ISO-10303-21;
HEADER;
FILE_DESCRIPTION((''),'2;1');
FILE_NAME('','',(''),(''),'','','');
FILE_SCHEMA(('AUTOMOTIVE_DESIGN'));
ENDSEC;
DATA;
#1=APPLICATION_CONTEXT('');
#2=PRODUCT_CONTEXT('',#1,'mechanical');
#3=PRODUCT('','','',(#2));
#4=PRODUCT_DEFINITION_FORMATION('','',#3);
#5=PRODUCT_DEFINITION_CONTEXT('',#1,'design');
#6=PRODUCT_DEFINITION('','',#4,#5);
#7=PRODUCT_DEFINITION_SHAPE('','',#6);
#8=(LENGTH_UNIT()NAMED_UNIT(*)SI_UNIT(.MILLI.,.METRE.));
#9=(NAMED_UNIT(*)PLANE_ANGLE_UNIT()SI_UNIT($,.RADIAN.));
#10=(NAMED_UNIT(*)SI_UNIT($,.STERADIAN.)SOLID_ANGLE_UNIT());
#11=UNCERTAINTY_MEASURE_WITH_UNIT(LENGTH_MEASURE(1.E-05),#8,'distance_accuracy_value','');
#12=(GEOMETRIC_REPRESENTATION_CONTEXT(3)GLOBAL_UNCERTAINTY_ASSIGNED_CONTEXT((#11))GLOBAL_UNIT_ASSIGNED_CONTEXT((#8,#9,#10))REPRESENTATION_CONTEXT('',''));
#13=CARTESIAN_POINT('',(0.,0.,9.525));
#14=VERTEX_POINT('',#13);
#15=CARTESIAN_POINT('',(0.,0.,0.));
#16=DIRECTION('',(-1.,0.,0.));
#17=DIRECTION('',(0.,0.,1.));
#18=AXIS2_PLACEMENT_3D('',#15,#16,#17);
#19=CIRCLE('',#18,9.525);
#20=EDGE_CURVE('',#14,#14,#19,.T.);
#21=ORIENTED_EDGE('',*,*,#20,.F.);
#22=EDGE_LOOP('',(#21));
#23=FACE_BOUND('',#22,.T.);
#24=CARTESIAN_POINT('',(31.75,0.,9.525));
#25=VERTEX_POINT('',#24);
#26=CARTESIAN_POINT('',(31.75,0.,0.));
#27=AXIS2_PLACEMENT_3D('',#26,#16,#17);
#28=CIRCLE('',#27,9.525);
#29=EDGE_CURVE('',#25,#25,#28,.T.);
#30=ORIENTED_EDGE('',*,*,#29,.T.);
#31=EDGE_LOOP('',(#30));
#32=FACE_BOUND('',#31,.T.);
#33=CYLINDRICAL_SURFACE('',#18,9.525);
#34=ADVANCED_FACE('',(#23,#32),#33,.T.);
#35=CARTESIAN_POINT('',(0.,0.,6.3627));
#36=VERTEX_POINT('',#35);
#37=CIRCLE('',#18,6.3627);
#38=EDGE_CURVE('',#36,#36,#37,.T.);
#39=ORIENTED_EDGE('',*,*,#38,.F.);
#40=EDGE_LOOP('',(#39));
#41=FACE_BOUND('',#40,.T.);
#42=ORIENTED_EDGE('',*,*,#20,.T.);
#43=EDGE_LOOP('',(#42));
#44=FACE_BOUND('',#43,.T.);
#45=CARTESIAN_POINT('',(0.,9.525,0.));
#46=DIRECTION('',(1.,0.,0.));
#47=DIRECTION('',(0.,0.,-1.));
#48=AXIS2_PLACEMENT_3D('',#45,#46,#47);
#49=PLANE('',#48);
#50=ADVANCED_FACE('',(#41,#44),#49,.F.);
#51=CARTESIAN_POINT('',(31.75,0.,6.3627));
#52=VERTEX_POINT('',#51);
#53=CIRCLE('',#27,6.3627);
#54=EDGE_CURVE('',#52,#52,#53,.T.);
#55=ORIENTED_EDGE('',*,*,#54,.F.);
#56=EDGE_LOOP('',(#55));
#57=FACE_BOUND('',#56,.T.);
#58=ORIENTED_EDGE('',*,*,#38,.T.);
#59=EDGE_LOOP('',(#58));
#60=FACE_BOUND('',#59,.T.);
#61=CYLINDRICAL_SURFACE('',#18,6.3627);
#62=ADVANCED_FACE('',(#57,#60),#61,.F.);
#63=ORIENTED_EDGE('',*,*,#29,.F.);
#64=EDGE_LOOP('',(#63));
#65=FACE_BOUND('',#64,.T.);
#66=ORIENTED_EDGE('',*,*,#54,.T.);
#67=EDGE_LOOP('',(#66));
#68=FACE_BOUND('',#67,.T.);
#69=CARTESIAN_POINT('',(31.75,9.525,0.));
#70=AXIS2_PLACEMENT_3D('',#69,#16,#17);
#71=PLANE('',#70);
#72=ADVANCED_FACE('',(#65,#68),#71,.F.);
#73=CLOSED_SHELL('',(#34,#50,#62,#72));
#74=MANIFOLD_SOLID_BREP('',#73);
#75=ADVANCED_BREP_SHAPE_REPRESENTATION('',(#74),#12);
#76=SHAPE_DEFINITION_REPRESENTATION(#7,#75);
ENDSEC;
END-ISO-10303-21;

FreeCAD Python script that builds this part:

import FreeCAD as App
import Part
import Sketcher
Q = App.Units.Quantity

doc = App.newDocument("Part")
params = doc.addObject("Spreadsheet::Sheet", "Params")
for row, (alias, value) in enumerate([
    ("sketch1_width", "1.25 in"),
    ("revolution_angle", "360 deg"),
], start=1):
    params.set(f"A{row}", alias)
    params.set(f"B{row}", "=" + value)
    params.setAlias(f"B{row}", alias)

body = doc.addObject("PartDesign::Body", "Body")

# Sketch on XY plane
sketch1 = body.newObject("Sketcher::SketchObject", "Sketch")
sketch1.AttachmentSupport = (doc.getObject("XY_Plane"), [""])
sketch1.MapMode = "FlatFace"
sketch1.addGeometry([
    Part.LineSegment(App.Vector(0, 9.5, 0), App.Vector(0, 6.4, 0)),
    Part.LineSegment(App.Vector(0, 6.4, 0), App.Vector(31.8, 6.4, 0)),
    Part.LineSegment(App.Vector(31.8, 6.4, 0), App.Vector(31.8, 9.5, 0)),
    Part.LineSegment(App.Vector(31.8, 9.5, 0), App.Vector(0, 9.5, 0)),
], False)
sketch1.addConstraint([
    Sketcher.Constraint("Coincident", 0, 2, 1, 1),
    Sketcher.Constraint("Coincident", 1, 2, 2, 1),
    Sketcher.Constraint("Coincident", 2, 2, 3, 1),
    Sketcher.Constraint("Coincident", 3, 2, 0, 1),
    Sketcher.Constraint("Vertical", 0),
    Sketcher.Constraint("Horizontal", 1),
    Sketcher.Constraint("Vertical", 2),
    Sketcher.Constraint("Horizontal", 3),
    Sketcher.Constraint("PointOnObject", 0, 2, -2),
    Sketcher.Constraint("DistanceX", 1, 1, 1, 2, Q("1.25 in")),
    Sketcher.Constraint("DistanceY", 0, 2, 0, 1, Q("0.1245 in")),
    Sketcher.Constraint("DistanceY", -1, 1, 2, 2, Q("0.375 in")),
])
sketch1.setExpression("Constraints[9]", "Params.sketch1_width")
revolution = body.newObject("PartDesign::Revolution", "Revolution")
revolution.Profile = sketch1
revolution.ReferenceAxis = (sketch1, ["H_Axis"])
revolution.setExpression("Angle", "Params.revolution_angle")

doc.recompute()
